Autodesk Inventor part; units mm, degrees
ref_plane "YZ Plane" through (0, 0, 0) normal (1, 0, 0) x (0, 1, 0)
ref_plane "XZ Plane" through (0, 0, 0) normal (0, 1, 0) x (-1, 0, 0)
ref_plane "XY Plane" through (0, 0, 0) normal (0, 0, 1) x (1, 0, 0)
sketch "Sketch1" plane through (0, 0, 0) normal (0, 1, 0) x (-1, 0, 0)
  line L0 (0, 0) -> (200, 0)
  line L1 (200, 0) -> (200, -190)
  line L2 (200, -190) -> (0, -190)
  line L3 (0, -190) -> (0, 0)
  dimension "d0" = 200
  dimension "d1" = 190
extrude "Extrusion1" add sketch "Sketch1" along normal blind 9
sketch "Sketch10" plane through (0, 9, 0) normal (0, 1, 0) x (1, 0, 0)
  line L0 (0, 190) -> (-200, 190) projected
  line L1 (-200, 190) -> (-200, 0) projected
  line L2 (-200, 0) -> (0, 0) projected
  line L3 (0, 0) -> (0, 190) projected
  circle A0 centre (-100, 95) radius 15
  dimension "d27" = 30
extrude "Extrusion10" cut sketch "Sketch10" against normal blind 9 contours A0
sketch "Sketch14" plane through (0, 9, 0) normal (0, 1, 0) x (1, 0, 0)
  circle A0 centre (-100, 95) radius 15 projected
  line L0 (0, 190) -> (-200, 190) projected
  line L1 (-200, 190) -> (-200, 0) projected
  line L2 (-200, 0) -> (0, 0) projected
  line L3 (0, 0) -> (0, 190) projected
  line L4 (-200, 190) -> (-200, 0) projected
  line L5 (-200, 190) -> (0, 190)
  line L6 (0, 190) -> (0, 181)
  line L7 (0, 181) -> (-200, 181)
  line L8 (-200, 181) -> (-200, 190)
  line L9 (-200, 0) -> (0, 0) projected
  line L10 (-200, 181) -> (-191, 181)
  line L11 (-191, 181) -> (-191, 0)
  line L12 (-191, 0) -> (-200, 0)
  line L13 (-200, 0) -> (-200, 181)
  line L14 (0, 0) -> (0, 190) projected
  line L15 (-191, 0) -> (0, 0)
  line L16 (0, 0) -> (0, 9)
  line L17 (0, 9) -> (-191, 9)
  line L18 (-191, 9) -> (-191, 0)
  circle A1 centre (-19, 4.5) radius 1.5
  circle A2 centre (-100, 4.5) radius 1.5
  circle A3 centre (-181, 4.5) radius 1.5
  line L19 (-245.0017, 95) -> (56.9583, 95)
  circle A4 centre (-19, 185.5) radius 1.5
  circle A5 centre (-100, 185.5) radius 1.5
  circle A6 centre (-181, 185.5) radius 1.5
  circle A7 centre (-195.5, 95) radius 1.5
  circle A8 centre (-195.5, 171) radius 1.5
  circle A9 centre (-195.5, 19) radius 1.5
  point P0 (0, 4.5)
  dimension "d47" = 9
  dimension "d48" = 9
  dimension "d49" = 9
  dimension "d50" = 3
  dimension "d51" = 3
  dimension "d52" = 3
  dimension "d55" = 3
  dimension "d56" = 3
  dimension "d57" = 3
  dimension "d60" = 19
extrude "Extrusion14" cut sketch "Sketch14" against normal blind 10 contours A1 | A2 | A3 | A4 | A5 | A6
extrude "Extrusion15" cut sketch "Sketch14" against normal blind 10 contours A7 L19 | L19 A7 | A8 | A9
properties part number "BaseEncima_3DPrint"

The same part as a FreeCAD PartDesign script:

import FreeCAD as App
import Part
import Sketcher

V = App.Vector

doc = App.newDocument("Part")
body = doc.addObject("PartDesign::Body", "Body")

# Sketch on XZ plane
sketch1 = body.newObject("Sketcher::SketchObject", "Sketch")
sketch1.AttachmentSupport = (doc.getObject("XZ_Plane"), [""])
sketch1.MapMode = "FlatFace"
sketch1.addGeometry(Part.LineSegment(V(-200, 0, 0), V(0, 0, 0)), False)
sketch1.addGeometry(Part.LineSegment(V(0, 0, 0), V(0, -190, 0)), False)
sketch1.addGeometry(Part.LineSegment(V(0, -190, 0), V(-200, -190, 0)), False)
sketch1.addGeometry(Part.LineSegment(V(-200, -190, 0), V(-200, 0, 0)), False)
sketch1.addConstraint(Sketcher.Constraint("Coincident", 0, 2, 1, 1))
sketch1.addConstraint(Sketcher.Constraint("Coincident", 1, 2, 2, 1))
sketch1.addConstraint(Sketcher.Constraint("Coincident", 2, 2, 3, 1))
sketch1.addConstraint(Sketcher.Constraint("Coincident", 3, 2, 0, 1))
sketch1.addConstraint(Sketcher.Constraint("Horizontal", 0))
sketch1.addConstraint(Sketcher.Constraint("Vertical", 1))
sketch1.addConstraint(Sketcher.Constraint("Horizontal", 2))
sketch1.addConstraint(Sketcher.Constraint("Vertical", 3))
sketch1.addConstraint(Sketcher.Constraint("Coincident", 0, 2, -1, 1))
sketch1.addConstraint(Sketcher.Constraint("DistanceX", 0, 1, 0, 2, 200.0))
sketch1.addConstraint(Sketcher.Constraint("DistanceY", 1, 2, 1, 1, 190.0))
pad1 = body.newObject("PartDesign::Pad", "Pad")
pad1.Profile = sketch1
pad1.Length = 9
pad1.Reversed = True

# Sketch on XZ plane
sketch2 = body.newObject("Sketcher::SketchObject", "Sketch001")
sketch2.AttachmentSupport = (doc.getObject("XZ_Plane"), [""])
sketch2.MapMode = "FlatFace"
sketch2.AttachmentOffset = App.Placement(V(0, 0, -9), App.Rotation())
sketch2.addGeometry(Part.Circle(V(-100, -95, 0), V(0, 0, 1), 15), False)
sketch2.addConstraint(Sketcher.Constraint("Diameter", 0, 30.0))
sketch2.addConstraint(Sketcher.Constraint("DistanceX", 0, 3, -1, 1, 100.0))
sketch2.addConstraint(Sketcher.Constraint("DistanceY", 0, 3, -1, 1, 95.0))
pocket1 = body.newObject("PartDesign::Pocket", "Pocket")
pocket1.Profile = sketch2
pocket1.Length = 9
pocket1.Reversed = True

# Sketch on XZ plane
sketch3 = body.newObject("Sketcher::SketchObject", "Sketch002")
sketch3.AttachmentSupport = (doc.getObject("XZ_Plane"), [""])
sketch3.MapMode = "FlatFace"
sketch3.AttachmentOffset = App.Placement(V(0, 0, -9), App.Rotation())
sketch3.addGeometry(Part.Circle(V(-19, -4.5, 0), V(0, 0, 1), 1.5), False)
sketch3.addGeometry(Part.Circle(V(-100, -4.5, 0), V(0, 0, 1), 1.5), False)
sketch3.addGeometry(Part.Circle(V(-181, -4.5, 0), V(0, 0, 1), 1.5), False)
sketch3.addGeometry(Part.Circle(V(-19, -185.5, 0), V(0, 0, 1), 1.5), False)
sketch3.addGeometry(Part.Circle(V(-100, -185.5, 0), V(0, 0, 1), 1.5), False)
sketch3.addGeometry(Part.Circle(V(-181, -185.5, 0), V(0, 0, 1), 1.5), False)
sketch3.addConstraint(Sketcher.Constraint("Equal", 0, 1))
sketch3.addConstraint(Sketcher.Constraint("Equal", 1, 2))
sketch3.addConstraint(Sketcher.Constraint("Equal", 2, 3))
sketch3.addConstraint(Sketcher.Constraint("Equal", 3, 4))
sketch3.addConstraint(Sketcher.Constraint("Equal", 4, 5))
sketch3.addConstraint(Sketcher.Constraint("Horizontal", 0, 3, 1, 3))
sketch3.addConstraint(Sketcher.Constraint("Horizontal", 1, 3, 2, 3))
sketch3.addConstraint(Sketcher.Constraint("Horizontal", 3, 3, 4, 3))
sketch3.addConstraint(Sketcher.Constraint("Horizontal", 4, 3, 5, 3))
sketch3.addConstraint(Sketcher.Constraint("Vertical", 0, 3, 3, 3))
sketch3.addConstraint(Sketcher.Constraint("Vertical", 1, 3, 4, 3))
sketch3.addConstraint(Sketcher.Constraint("Vertical", 2, 3, 5, 3))
sketch3.addConstraint(Sketcher.Constraint("Diameter", 0, 3.0))
sketch3.addConstraint(Sketcher.Constraint("DistanceX", 0, 3, -1, 1, 19.0))
sketch3.addConstraint(Sketcher.Constraint("DistanceX", 1, 3, -1, 1, 100.0))
sketch3.addConstraint(Sketcher.Constraint("DistanceX", 2, 3, -1, 1, 181.0))
sketch3.addConstraint(Sketcher.Constraint("DistanceY", 3, 3, 0, 3, 181.0))
sketch3.addConstraint(Sketcher.Constraint("DistanceY", 0, 3, -1, 1, 4.5))
pocket2 = body.newObject("PartDesign::Pocket", "Pocket001")
pocket2.Profile = sketch3
pocket2.Length = 10
pocket2.Reversed = True

# Sketch on XZ plane
sketch4 = body.newObject("Sketcher::SketchObject", "Sketch003")
sketch4.AttachmentSupport = (doc.getObject("XZ_Plane"), [""])
sketch4.MapMode = "FlatFace"
sketch4.AttachmentOffset = App.Placement(V(0, 0, -9), App.Rotation())
sketch4.addGeometry(Part.Circle(V(-195.5, -95, 0), V(0, 0, 1), 1.5), False)
sketch4.addGeometry(Part.Circle(V(-195.5, -171, 0), V(0, 0, 1), 1.5), False)
sketch4.addGeometry(Part.Circle(V(-195.5, -19, 0), V(0, 0, 1), 1.5), False)
sketch4.addConstraint(Sketcher.Constraint("Equal", 0, 1))
sketch4.addConstraint(Sketcher.Constraint("Equal", 1, 2))
sketch4.addConstraint(Sketcher.Constraint("Vertical", 0, 3, 1, 3))
sketch4.addConstraint(Sketcher.Constraint("Vertical", 1, 3, 2, 3))
sketch4.addConstraint(Sketcher.Constraint("Diameter", 0, 3.0))
sketch4.addConstraint(Sketcher.Constraint("DistanceY", 2, 3, -1, 1, 19.0))
sketch4.addConstraint(Sketcher.Constraint("DistanceY", 0, 3, -1, 1, 95.0))
sketch4.addConstraint(Sketcher.Constraint("DistanceY", 1, 3, -1, 1, 171.0))
sketch4.addConstraint(Sketcher.Constraint("DistanceX", 0, 3, -1, 1, 195.5))
pocket3 = body.newObject("PartDesign::Pocket", "Pocket002")
pocket3.Profile = sketch4
pocket3.Length = 10
pocket3.Reversed = True

doc.recompute()
